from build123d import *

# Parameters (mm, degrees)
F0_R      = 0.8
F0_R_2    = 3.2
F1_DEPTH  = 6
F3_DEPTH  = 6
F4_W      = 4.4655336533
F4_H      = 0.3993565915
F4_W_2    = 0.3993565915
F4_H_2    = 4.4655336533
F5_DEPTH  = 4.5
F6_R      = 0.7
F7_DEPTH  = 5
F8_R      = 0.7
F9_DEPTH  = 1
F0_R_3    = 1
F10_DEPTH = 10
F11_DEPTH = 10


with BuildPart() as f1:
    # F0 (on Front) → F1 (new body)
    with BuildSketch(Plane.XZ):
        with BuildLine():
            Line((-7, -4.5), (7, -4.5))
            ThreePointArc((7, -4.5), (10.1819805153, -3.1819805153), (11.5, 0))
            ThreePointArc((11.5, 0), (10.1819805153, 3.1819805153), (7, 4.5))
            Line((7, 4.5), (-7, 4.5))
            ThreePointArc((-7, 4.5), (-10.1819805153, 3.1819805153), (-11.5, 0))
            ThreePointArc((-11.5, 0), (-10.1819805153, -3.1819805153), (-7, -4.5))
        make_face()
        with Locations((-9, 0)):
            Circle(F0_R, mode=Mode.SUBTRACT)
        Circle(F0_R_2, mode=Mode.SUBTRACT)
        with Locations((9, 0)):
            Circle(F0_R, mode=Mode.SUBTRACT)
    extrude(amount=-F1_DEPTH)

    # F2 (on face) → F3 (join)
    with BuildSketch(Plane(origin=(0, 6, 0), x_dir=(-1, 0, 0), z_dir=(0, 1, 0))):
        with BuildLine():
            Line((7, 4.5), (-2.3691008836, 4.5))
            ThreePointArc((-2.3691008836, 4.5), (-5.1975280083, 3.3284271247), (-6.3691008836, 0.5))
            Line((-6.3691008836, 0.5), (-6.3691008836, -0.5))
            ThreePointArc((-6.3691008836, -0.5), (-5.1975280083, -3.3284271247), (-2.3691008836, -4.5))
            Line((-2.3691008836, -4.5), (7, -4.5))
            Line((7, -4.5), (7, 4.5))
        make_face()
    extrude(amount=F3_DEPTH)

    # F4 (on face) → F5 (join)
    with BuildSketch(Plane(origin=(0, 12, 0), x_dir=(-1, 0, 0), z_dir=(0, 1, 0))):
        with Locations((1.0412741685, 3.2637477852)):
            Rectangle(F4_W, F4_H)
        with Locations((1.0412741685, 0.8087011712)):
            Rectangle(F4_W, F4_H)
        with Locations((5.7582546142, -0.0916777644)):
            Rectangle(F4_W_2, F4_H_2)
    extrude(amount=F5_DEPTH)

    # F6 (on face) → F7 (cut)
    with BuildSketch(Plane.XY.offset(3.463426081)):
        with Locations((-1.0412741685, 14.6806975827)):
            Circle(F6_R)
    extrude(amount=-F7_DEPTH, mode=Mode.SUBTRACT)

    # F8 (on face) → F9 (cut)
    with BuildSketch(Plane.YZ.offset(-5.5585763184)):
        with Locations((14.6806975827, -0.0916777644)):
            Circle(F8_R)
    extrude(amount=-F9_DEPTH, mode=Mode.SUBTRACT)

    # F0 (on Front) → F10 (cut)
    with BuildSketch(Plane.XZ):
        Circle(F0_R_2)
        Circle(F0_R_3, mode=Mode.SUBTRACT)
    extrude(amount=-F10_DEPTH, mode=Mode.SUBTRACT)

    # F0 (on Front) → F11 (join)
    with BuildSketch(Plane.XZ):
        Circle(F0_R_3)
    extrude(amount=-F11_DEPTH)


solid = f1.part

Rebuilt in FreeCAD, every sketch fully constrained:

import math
import FreeCAD as App
import Part
import Sketcher
from FreeCAD import Vector
Q = App.Units.Quantity

doc = App.newDocument("Part")
params = doc.addObject("Spreadsheet::Sheet", "Params")
for row, (alias, value) in enumerate([
    ("sketch1_diameter", "1.6 mm"),
    ("sketch1_diameter2", "6.4 mm"),
    ("sketch1_radius", "4.5 mm"),
    ("sketch1_width", "14 mm"),
    ("pad1_length", "6 mm"),
    ("sketch2_radius", "4 mm"),
    ("sketch2_height", "1 mm"),
    ("pad2_length", "6 mm"),
    ("pad3_length", "4.5 mm"),
    ("sketch4_diameter", "1.4 mm"),
    ("pocket1_length", "5 mm"),
    ("sketch5_diameter", "1.4 mm"),
    ("pocket2_length", "1 mm"),
    ("sketch6_diameter", "2 mm"),
    ("sketch6_diameter2", "6.4 mm"),
    ("pocket3_length", "10 mm"),
    ("sketch7_diameter", "2 mm"),
    ("pad4_length", "10 mm"),
], start=1):
    params.set(f"A{row}", alias)
    params.set(f"B{row}", "=" + value)
    params.setAlias(f"B{row}", alias)

body = doc.addObject("PartDesign::Body", "Body")

# Sketch on XZ plane
sketch1 = body.newObject("Sketcher::SketchObject", "Sketch")
sketch1.AttachmentSupport = (doc.getObject("XZ_Plane"), [""])
sketch1.MapMode = "FlatFace"
sketch1.addGeometry([
    Part.LineSegment(Vector(-7, -4.5, 0), Vector(7, -4.5, 0)),  # 0
    Part.ArcOfCircle(Part.Circle(Vector(7, 0, 0), Vector(0, 0, 1), 4.5), math.radians(-90), math.radians(0)),  # 1
    Part.ArcOfCircle(Part.Circle(Vector(7, 0, 0), Vector(0, 0, 1), 4.5), math.radians(0), math.radians(90)),  # 2
    Part.LineSegment(Vector(7, 4.5, 0), Vector(-7, 4.5, 0)),  # 3
    Part.ArcOfCircle(Part.Circle(Vector(-7, 0, 0), Vector(0, 0, 1), 4.5), math.radians(90), math.radians(180)),  # 4
    Part.ArcOfCircle(Part.Circle(Vector(-7, 0, 0), Vector(0, 0, 1), 4.5), math.radians(180), math.radians(270)),  # 5
    Part.Circle(Vector(-9, 0, 0), Vector(0, 0, 1), 0.8),  # 6
    Part.Circle(Vector(0, 0, 0), Vector(0, 0, 1), 3.2),  # 7
    Part.Circle(Vector(9, 0, 0), Vector(0, 0, 1), 0.8),  # 8
], False)
sketch1.addConstraint([
    Sketcher.Constraint("Tangent", 0, 2, 1, 1),
    Sketcher.Constraint("Tangent", 1, 2, 2, 1),
    Sketcher.Constraint("Tangent", 2, 2, 3, 1),
    Sketcher.Constraint("Tangent", 3, 2, 4, 1),
    Sketcher.Constraint("Tangent", 4, 2, 5, 1),
    Sketcher.Constraint("Tangent", 5, 2, 0, 1),
    Sketcher.Constraint("Horizontal", 0),
    Sketcher.Constraint("Horizontal", 3),
    Sketcher.Constraint("Coincident", 7, 3, -1, 1),
    Sketcher.Constraint("Equal", 1, 2),
    Sketcher.Constraint("Equal", 2, 4),
    Sketcher.Constraint("Equal", 6, 8),
    Sketcher.Constraint("Symmetric", 1, 3, 4, 3, -1, 1),
    Sketcher.Constraint("Symmetric", 6, 3, 8, 3, -1, 1),
    Sketcher.Constraint("PointOnObject", 6, 3, -1),
    Sketcher.Constraint("PointOnObject", 1, 2, -1),
    Sketcher.Constraint("PointOnObject", 4, 2, -1),
    Sketcher.Constraint("Diameter", 6, Q("1.6 mm")),
    Sketcher.Constraint("Diameter", 7, Q("6.4 mm")),
    Sketcher.Constraint("Radius", 1, Q("4.5 mm")),
    Sketcher.Constraint("DistanceX", 0, 1, 0, 2, Q("14 mm")),
    Sketcher.Constraint("DistanceX", 6, 3, -1, 1, Q("9 mm")),
])
sketch1.setExpression("Constraints[17]", "Params.sketch1_diameter")
sketch1.setExpression("Constraints[18]", "Params.sketch1_diameter2")
sketch1.setExpression("Constraints[19]", "Params.sketch1_radius")
sketch1.setExpression("Constraints[20]", "Params.sketch1_width")
pad1 = body.newObject("PartDesign::Pad", "Pad")
pad1.Profile = sketch1
pad1.setExpression("Length", "Params.pad1_length")
pad1.Reversed = True

# Sketch on XZ plane
sketch2 = body.newObject("Sketcher::SketchObject", "Sketch001")
sketch2.AttachmentSupport = (doc.getObject("XZ_Plane"), [""])
sketch2.MapMode = "FlatFace"
sketch2.AttachmentOffset = App.Placement(Vector(0, 0, -6), App.Rotation())
sketch2.addGeometry([
    Part.LineSegment(Vector(-7, 4.5, 0), Vector(2.4, 4.5, 0)),  # 0
    Part.ArcOfCircle(Part.Circle(Vector(2.4, 0.5, 0), Vector(0, 0, 1), 4), math.radians(0), math.radians(90)),  # 1
    Part.LineSegment(Vector(6.4, 0.5, 0), Vector(6.4, -0.5, 0)),  # 2
    Part.ArcOfCircle(Part.Circle(Vector(2.4, -0.5, 0), Vector(0, 0, 1), 4), math.radians(-90), math.radians(0)),  # 3
    Part.LineSegment(Vector(2.4, -4.5, 0), Vector(-7, -4.5, 0)),  # 4
    Part.LineSegment(Vector(-7, -4.5, 0), Vector(-7, 4.5, 0)),  # 5
], False)
sketch2.addConstraint([
    Sketcher.Constraint("Tangent", 0, 2, 1, 2),
    Sketcher.Constraint("Tangent", 1, 1, 2, 1),
    Sketcher.Constraint("Tangent", 2, 2, 3, 2),
    Sketcher.Constraint("Tangent", 3, 1, 4, 1),
    Sketcher.Constraint("Coincident", 4, 2, 5, 1),
    Sketcher.Constraint("Coincident", 5, 2, 0, 1),
    Sketcher.Constraint("Horizontal", 0),
    Sketcher.Constraint("Vertical", 2),
    Sketcher.Constraint("Horizontal", 4),
    Sketcher.Constraint("Vertical", 5),
    Sketcher.Constraint("Equal", 1, 3),
    Sketcher.Constraint("Radius", 1, Q("4 mm")),
    Sketcher.Constraint("DistanceY", 2, 2, 2, 1, Q("1 mm")),
    Sketcher.Constraint("DistanceX", 4, 2, -1, 1, Q("7 mm")),
    Sketcher.Constraint("DistanceY", -1, 1, 1, 3, Q("0.5 mm")),
    Sketcher.Constraint("DistanceX", 0, 1, 0, 2, Q("9.369101 mm")),
])
sketch2.setExpression("Constraints[11]", "Params.sketch2_radius")
sketch2.setExpression("Constraints[12]", "Params.sketch2_height")
pad2 = body.newObject("PartDesign::Pad", "Pad001")
pad2.Profile = sketch2
pad2.setExpression("Length", "Params.pad2_length")
pad2.Reversed = True

# Sketch on XZ plane
sketch3 = body.newObject("Sketcher::SketchObject", "Sketch002")
sketch3.AttachmentSupport = (doc.getObject("XZ_Plane"), [""])
sketch3.MapMode = "FlatFace"
sketch3.AttachmentOffset = App.Placement(Vector(0, 0, -12), App.Rotation())
sketch3.addGeometry([
    Part.LineSegment(Vector(1.19, 3.46, 0), Vector(1.19, 3.06, 0)),  # 0
    Part.LineSegment(Vector(1.19, 3.06, 0), Vector(-3.27, 3.06, 0)),  # 1
    Part.LineSegment(Vector(-3.27, 3.06, 0), Vector(-3.27, 3.46, 0)),  # 2
    Part.LineSegment(Vector(-3.27, 3.46, 0), Vector(1.19, 3.46, 0)),  # 3
    Part.LineSegment(Vector(1.19, 1.01, 0), Vector(1.19, 0.61, 0)),  # 4
    Part.LineSegment(Vector(1.19, 0.61, 0), Vector(-3.27, 0.61, 0)),  # 5
    Part.LineSegment(Vector(-3.27, 0.61, 0), Vector(-3.27, 1.01, 0)),  # 6
    Part.LineSegment(Vector(-3.27, 1.01, 0), Vector(1.19, 1.01, 0)),  # 7
    Part.LineSegment(Vector(-5.56, 2.14, 0), Vector(-5.56, -2.32, 0)),  # 8
    Part.LineSegment(Vector(-5.56, -2.32, 0), Vector(-5.96, -2.32, 0)),  # 9
    Part.LineSegment(Vector(-5.96, -2.32, 0), Vector(-5.96, 2.14, 0)),  # 10
    Part.LineSegment(Vector(-5.96, 2.14, 0), Vector(-5.56, 2.14, 0)),  # 11
], False)
sketch3.addConstraint([
    Sketcher.Constraint("Coincident", 0, 2, 1, 1),
    Sketcher.Constraint("Coincident", 1, 2, 2, 1),
    Sketcher.Constraint("Coincident", 2, 2, 3, 1),
    Sketcher.Constraint("Coincident", 3, 2, 0, 1),
    Sketcher.Constraint("Coincident", 4, 2, 5, 1),
    Sketcher.Constraint("Coincident", 5, 2, 6, 1),
    Sketcher.Constraint("Coincident", 6, 2, 7, 1),
    Sketcher.Constraint("Coincident", 7, 2, 4, 1),
    Sketcher.Constraint("Coincident", 8, 2, 9, 1),
    Sketcher.Constraint("Coincident", 9, 2, 10, 1),
    Sketcher.Constraint("Coincident", 10, 2, 11, 1),
    Sketcher.Constraint("Coincident", 11, 2, 8, 1),
    Sketcher.Constraint("Vertical", 0),
    Sketcher.Constraint("Horizontal", 1),
    Sketcher.Constraint("Vertical", 2),
    Sketcher.Constraint("Horizontal", 3),
    Sketcher.Constraint("Vertical", 4),
    Sketcher.Constraint("Horizontal", 5),
    Sketcher.Constraint("Vertical", 6),
    Sketcher.Constraint("Horizontal", 7),
    Sketcher.Constraint("Vertical", 8),
    Sketcher.Constraint("Horizontal", 9),
    Sketcher.Constraint("Vertical", 10),
    Sketcher.Constraint("Horizontal", 11),
    Sketcher.Constraint("Vertical", 3, 2, 4, 2),
    Sketcher.Constraint("Vertical", 2, 2, 5, 2),
    Sketcher.Constraint("Equal", 11, 0),
    Sketcher.Constraint("Equal", 2, 4),
    Sketcher.Constraint("Equal", 7, 8),
    Sketcher.Constraint("DistanceX", 1, 2, 1, 1, Q("4.465534 mm")),
    Sketcher.Constraint("DistanceX", 9, 2, 9, 1, Q("0.399357 mm")),
    Sketcher.Constraint("DistanceY", -1, 1, 0, 2, Q("3.064069 mm")),
    Sketcher.Constraint("DistanceX", 1, 2, -1, 1, Q("3.274041 mm")),
    Sketcher.Constraint("DistanceY", -1, 1, 6, 2, Q("1.008379 mm")),
    Sketcher.Constraint("DistanceY", -1, 1, 10, 2, Q("2.141089 mm")),
    Sketcher.Constraint("DistanceX", 8, 2, 4, 2, Q("6.750069 mm")),
])
pad3 = body.newObject("PartDesign::Pad", "Pad002")
pad3.Profile = sketch3
pad3.setExpression("Length", "Params.pad3_length")
pad3.Reversed = True

# Sketch on XY plane
sketch4 = body.newObject("Sketcher::SketchObject", "Sketch003")
sketch4.AttachmentSupport = (doc.getObject("XY_Plane"), [""])
sketch4.MapMode = "FlatFace"
sketch4.AttachmentOffset = App.Placement(Vector(0, 0, 3.463426), App.Rotation())
sketch4.addGeometry(Part.Circle(Vector(-1, 14.7, 0), Vector(0, 0, 1), 0.7), False)
sketch4.addConstraint([
    Sketcher.Constraint("Diameter", 0, Q("1.4 mm")),
    Sketcher.Constraint("DistanceX", 0, 3, -1, 1, Q("1.041274 mm")),
    Sketcher.Constraint("DistanceY", -1, 1, 0, 3, Q("14.680698 mm")),
])
sketch4.setExpression("Constraints[0]", "Params.sketch4_diameter")
pocket1 = body.newObject("PartDesign::Pocket", "Pocket")
pocket1.Profile = sketch4
pocket1.setExpression("Length", "Params.pocket1_length")

# Sketch on YZ plane
sketch5 = body.newObject("Sketcher::SketchObject", "Sketch004")
sketch5.AttachmentSupport = (doc.getObject("YZ_Plane"), [""])
sketch5.MapMode = "FlatFace"
sketch5.AttachmentOffset = App.Placement(Vector(0, 0, -5.558576), App.Rotation())
sketch5.addGeometry(Part.Circle(Vector(14.7, -0.1, 0), Vector(0, 0, 1), 0.7), False)
sketch5.addConstraint([
    Sketcher.Constraint("Diameter", 0, Q("1.4 mm")),
    Sketcher.Constraint("DistanceX", -1, 1, 0, 3, Q("14.680698 mm")),
    Sketcher.Constraint("DistanceY", 0, 3, -1, 1, Q("0.091678 mm")),
])
sketch5.setExpression("Constraints[0]", "Params.sketch5_diameter")
pocket2 = body.newObject("PartDesign::Pocket", "Pocket001")
pocket2.Profile = sketch5
pocket2.setExpression("Length", "Params.pocket2_length")

# Sketch on XZ plane
sketch6 = body.newObject("Sketcher::SketchObject", "Sketch005")
sketch6.AttachmentSupport = (doc.getObject("XZ_Plane"), [""])
sketch6.MapMode = "FlatFace"
sketch6.addGeometry([
    Part.Circle(Vector(0, 0, 0), Vector(0, 0, 1), 3.2),
    Part.Circle(Vector(0, 0, 0), Vector(0, 0, 1), 1),
], False)
sketch6.addConstraint([
    Sketcher.Constraint("Coincident", 0, 3, -1, 1),
    Sketcher.Constraint("Coincident", 1, 3, -1, 1),
    Sketcher.Constraint("Diameter", 1, Q("2 mm")),
    Sketcher.Constraint("Diameter", 0, Q("6.4 mm")),
])
sketch6.setExpression("Constraints[2]", "Params.sketch6_diameter")
sketch6.setExpression("Constraints[3]", "Params.sketch6_diameter2")
pocket3 = body.newObject("PartDesign::Pocket", "Pocket002")
pocket3.Profile = sketch6
pocket3.setExpression("Length", "Params.pocket3_length")

# Sketch on XZ plane
sketch7 = body.newObject("Sketcher::SketchObject", "Sketch006")
sketch7.AttachmentSupport = (doc.getObject("XZ_Plane"), [""])
sketch7.MapMode = "FlatFace"
sketch7.addGeometry(Part.Circle(Vector(0, 0, 0), Vector(0, 0, 1), 1), False)
sketch7.addConstraint([
    Sketcher.Constraint("Coincident", 0, 3, -1, 1),
    Sketcher.Constraint("Diameter", 0, Q("2 mm")),
])
sketch7.setExpression("Constraints[1]", "Params.sketch7_diameter")
pad4 = body.newObject("PartDesign::Pad", "Pad003")
pad4.Profile = sketch7
pad4.setExpression("Length", "Params.pad4_length")
pad4.Reversed = True

doc.recompute()
